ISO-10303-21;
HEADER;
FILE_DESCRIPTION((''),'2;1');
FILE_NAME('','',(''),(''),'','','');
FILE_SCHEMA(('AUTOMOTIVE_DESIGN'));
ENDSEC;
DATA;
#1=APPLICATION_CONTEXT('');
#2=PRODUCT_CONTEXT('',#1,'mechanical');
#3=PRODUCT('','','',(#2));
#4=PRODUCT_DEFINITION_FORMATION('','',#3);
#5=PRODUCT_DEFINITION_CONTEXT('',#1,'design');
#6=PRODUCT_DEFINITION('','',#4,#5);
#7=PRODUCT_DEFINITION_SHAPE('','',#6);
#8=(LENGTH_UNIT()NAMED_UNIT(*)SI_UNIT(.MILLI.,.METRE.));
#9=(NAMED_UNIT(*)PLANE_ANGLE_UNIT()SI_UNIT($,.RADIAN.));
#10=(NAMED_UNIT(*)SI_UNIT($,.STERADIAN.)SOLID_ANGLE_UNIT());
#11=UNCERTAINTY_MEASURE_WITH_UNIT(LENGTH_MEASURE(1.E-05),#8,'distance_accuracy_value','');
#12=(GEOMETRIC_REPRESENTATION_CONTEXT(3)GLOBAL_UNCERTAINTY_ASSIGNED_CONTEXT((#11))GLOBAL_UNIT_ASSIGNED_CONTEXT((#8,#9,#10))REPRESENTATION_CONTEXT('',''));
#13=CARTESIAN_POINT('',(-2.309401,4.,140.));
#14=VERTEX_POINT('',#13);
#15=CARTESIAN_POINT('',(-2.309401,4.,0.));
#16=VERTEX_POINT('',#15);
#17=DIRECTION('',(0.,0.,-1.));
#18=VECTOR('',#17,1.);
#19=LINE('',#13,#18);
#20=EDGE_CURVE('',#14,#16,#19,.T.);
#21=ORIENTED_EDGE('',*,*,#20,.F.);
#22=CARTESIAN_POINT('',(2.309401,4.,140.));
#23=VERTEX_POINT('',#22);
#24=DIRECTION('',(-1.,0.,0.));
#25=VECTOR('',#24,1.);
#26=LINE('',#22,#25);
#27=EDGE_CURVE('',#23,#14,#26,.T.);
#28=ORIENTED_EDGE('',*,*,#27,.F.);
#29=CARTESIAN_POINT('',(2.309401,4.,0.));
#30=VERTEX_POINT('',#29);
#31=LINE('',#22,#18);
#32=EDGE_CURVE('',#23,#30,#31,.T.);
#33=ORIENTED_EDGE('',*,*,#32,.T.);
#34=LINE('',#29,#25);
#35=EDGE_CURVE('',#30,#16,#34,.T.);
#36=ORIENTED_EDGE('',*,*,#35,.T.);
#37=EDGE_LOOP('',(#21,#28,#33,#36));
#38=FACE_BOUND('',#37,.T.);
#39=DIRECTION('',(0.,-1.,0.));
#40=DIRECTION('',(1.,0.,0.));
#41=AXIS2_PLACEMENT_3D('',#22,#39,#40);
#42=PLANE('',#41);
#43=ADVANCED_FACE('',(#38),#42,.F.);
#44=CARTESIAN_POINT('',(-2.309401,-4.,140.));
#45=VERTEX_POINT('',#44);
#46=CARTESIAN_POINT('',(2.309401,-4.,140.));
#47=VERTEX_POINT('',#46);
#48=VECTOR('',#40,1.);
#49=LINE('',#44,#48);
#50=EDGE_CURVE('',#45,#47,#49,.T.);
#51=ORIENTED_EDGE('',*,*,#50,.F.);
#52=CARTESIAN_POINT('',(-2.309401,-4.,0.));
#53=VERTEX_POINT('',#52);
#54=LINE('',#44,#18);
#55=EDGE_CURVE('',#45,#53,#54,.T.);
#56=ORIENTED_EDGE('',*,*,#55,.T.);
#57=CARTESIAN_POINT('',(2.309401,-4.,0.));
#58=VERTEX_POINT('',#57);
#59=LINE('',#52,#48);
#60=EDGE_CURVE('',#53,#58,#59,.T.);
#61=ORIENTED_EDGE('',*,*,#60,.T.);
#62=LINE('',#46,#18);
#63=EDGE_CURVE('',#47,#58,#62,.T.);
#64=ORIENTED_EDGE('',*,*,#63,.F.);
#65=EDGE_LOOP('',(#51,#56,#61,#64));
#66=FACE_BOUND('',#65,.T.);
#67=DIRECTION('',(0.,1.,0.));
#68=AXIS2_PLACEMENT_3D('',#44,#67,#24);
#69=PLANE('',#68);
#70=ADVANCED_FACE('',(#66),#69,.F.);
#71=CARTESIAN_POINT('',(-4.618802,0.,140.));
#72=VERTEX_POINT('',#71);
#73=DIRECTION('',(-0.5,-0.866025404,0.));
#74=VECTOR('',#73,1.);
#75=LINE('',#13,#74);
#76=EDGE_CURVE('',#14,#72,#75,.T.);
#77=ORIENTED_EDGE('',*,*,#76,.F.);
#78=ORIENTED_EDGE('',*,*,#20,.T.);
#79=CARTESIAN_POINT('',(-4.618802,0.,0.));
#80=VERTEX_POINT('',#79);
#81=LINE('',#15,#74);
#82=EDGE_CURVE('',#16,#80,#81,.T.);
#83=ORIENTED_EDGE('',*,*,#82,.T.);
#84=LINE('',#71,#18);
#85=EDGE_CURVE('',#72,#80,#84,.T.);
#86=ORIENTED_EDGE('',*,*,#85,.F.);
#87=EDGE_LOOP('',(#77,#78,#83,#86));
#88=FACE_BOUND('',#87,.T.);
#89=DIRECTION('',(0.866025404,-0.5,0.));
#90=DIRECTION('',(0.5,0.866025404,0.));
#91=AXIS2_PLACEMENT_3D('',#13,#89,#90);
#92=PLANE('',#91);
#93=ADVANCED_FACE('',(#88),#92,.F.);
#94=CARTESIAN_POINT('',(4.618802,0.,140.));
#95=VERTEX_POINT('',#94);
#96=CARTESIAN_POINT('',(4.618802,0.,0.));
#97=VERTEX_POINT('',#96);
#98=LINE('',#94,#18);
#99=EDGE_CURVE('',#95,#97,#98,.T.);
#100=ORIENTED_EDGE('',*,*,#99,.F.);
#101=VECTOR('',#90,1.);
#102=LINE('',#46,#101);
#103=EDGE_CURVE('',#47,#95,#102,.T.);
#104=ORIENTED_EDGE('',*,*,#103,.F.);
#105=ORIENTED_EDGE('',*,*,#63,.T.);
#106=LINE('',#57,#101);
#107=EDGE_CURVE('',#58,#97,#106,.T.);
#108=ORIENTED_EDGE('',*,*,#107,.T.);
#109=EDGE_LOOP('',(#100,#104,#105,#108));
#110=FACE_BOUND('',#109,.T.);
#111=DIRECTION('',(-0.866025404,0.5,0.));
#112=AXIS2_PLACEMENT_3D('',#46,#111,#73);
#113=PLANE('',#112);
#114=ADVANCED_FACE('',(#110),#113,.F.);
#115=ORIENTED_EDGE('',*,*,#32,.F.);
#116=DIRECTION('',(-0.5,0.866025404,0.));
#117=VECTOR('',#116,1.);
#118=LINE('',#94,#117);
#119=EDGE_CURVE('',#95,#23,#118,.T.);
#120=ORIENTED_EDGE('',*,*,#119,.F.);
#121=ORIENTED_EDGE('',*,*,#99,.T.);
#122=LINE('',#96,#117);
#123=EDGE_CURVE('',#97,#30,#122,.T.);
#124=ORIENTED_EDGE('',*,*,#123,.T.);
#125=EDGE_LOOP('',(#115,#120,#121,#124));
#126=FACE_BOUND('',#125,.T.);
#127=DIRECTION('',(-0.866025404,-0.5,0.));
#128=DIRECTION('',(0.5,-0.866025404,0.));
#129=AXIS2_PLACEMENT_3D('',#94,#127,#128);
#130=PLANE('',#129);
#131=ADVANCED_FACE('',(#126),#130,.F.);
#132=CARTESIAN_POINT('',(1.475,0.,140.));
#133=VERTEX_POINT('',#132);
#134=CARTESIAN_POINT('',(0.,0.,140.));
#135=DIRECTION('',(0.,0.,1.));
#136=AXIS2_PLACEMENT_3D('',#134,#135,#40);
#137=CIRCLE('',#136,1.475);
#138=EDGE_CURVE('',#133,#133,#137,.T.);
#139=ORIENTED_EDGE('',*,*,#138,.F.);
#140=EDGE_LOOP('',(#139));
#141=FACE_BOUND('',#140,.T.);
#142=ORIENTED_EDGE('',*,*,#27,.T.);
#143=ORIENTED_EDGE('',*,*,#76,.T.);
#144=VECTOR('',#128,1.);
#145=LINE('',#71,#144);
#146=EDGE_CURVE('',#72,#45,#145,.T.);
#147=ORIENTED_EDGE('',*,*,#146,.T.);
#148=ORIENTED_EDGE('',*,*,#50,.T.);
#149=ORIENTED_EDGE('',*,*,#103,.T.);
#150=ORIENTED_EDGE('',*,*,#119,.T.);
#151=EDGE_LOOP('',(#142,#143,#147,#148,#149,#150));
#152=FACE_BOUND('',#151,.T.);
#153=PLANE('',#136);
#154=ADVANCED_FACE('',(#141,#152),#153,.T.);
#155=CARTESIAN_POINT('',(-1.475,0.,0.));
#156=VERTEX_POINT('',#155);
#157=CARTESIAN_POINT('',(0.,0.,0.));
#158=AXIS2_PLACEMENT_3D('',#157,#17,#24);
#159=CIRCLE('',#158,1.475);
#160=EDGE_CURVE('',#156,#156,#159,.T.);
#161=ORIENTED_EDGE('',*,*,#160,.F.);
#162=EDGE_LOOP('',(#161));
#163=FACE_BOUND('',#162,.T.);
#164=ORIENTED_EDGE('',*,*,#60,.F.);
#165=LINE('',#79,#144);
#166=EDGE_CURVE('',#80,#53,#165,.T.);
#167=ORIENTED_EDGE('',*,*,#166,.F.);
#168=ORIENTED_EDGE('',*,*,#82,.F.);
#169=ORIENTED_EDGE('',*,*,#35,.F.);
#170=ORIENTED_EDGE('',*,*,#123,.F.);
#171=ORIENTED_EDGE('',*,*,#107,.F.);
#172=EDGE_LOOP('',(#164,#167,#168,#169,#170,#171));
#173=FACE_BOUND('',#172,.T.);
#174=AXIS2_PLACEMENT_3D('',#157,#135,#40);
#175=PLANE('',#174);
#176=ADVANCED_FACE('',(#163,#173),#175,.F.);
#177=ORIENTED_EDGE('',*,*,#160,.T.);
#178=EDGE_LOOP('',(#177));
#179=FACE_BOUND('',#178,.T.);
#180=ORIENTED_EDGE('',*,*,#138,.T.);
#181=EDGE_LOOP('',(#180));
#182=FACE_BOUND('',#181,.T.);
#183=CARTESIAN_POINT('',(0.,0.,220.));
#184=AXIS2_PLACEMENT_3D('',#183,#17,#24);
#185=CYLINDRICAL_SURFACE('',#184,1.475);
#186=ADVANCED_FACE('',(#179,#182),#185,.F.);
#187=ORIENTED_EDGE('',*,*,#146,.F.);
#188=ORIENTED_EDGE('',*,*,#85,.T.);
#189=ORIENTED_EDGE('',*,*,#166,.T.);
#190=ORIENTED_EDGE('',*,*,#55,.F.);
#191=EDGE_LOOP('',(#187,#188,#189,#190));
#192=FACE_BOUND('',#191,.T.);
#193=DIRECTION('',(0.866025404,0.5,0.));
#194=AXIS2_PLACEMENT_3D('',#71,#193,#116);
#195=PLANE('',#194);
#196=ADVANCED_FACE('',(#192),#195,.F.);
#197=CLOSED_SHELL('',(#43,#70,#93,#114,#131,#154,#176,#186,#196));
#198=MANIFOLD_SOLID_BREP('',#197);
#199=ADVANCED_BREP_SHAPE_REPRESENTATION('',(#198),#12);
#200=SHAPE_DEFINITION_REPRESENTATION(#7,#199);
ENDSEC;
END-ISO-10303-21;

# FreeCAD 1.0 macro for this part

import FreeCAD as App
import Part
import Sketcher
from FreeCAD import Vector
Q = App.Units.Quantity


def add_polygon(sketch, points):
    """Adds a closed chain of lines whose ends are joined by coincident constraints."""
    first, n = sketch.GeometryCount, len(points)
    for a, b in zip(points, points[1:] + points[:1]):
        sketch.addGeometry(Part.LineSegment(App.Vector(*a, 0), App.Vector(*b, 0)), False)
    for i in range(n):
        sketch.addConstraint(Sketcher.Constraint("Coincident", first + i, 2, first + (i + 1) % n, 1))

doc = App.newDocument("Part")
params = doc.addObject("Spreadsheet::Sheet", "Params")
for row, (alias, value) in enumerate([
    ("pad1_length", "140 mm"),
    ("sketch2_diameter", "2.95 mm"),
    ("pocket1_length", "220 mm"),
], start=1):
    params.set(f"A{row}", alias)
    params.set(f"B{row}", "=" + value)
    params.setAlias(f"B{row}", alias)

body = doc.addObject("PartDesign::Body", "Body")

sketch1 = body.newObject("Sketcher::SketchObject", "Sketch")
sketch1.AttachmentSupport = (doc.getObject("XY_Plane"), [""])
sketch1.MapMode = "FlatFace"
add_polygon(sketch1, [(2.3, 4), (-2.3, 4), (-4.6, 0), (-2.3, -4), (2.3, -4), (4.6, 0)])
sketch1.addConstraint([
    Sketcher.Constraint("Horizontal", 0),
    Sketcher.Constraint("Horizontal", 3),
    Sketcher.Constraint("Symmetric", 0, 2, 3, 2, -1, 1),
    Sketcher.Constraint("Symmetric", 1, 2, 4, 2, -1, 1),
    Sketcher.Constraint("PointOnObject", 1, 2, -1),
    Sketcher.Constraint("Parallel", 2, 5),
    Sketcher.Constraint("Vertical", 0, 2, 2, 2),
    Sketcher.Constraint("Angle", 1, Q("-120 deg")),
    Sketcher.Constraint("DistanceY", -1, 1, 0, 2, Q("4 mm")),
    Sketcher.Constraint("DistanceX", 0, 2, -1, 1, Q("2.309401 mm")),
])
pad1 = body.newObject("PartDesign::Pad", "Pad")
pad1.Profile = sketch1
pad1.setExpression("Length", "Params.pad1_length")

sketch2 = body.newObject("Sketcher::SketchObject", "Sketch001")
sketch2.AttachmentSupport = (doc.getObject("XY_Plane"), [""])
sketch2.MapMode = "FlatFace"
sketch2.addGeometry(Part.Circle(Vector(0, 0, 0), Vector(0, 0, 1), 1.5), False)
sketch2.addConstraint([
    Sketcher.Constraint("Coincident", 0, 3, -1, 1),
    Sketcher.Constraint("Diameter", 0, Q("2.95 mm")),
])
sketch2.setExpression("Constraints[1]", "Params.sketch2_diameter")
pocket1 = body.newObject("PartDesign::Pocket", "Pocket")
pocket1.Profile = sketch2
pocket1.setExpression("Length", "Params.pocket1_length")
pocket1.Reversed = True

doc.recompute()
